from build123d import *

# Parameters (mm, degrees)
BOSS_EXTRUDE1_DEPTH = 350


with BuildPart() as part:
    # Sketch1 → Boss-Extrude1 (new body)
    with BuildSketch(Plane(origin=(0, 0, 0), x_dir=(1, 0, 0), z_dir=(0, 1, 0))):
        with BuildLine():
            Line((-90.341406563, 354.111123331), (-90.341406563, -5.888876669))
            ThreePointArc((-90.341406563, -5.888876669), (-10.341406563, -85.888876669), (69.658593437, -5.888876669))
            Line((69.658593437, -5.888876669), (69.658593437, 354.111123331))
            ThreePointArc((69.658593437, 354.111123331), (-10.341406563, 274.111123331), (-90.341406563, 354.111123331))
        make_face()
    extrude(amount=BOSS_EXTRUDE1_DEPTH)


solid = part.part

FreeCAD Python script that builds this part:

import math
import FreeCAD as App
import Part
import Sketcher

doc = App.newDocument("Part")
params = doc.addObject("Spreadsheet::Sheet", "Params")
for row, (alias, value) in enumerate([
    ("sketch1_radius", "80 mm"),
    ("sketch1_height", "360 mm"),
    ("pad1_length", "350 mm"),
], start=1):
    params.set(f"A{row}", alias)
    params.set(f"B{row}", "=" + value)
    params.setAlias(f"B{row}", alias)

body = doc.addObject("PartDesign::Body", "Body")

# Sketch on XZ plane
sketch1 = body.newObject("Sketcher::SketchObject", "Sketch")
sketch1.AttachmentSupport = (doc.getObject("XZ_Plane"), [""])
sketch1.MapMode = "FlatFace"
sketch1.addGeometry([
    Part.LineSegment(App.Vector(-90.341407, -354.111123, 0), App.Vector(-90.341407, 5.888877, 0)),
    Part.ArcOfCircle(Part.Circle(App.Vector(-10.341407, 5.888877, 0), App.Vector(0, 0, 1), 80), math.radians(0), math.radians(180)),
    Part.LineSegment(App.Vector(69.658593, 5.888877, 0), App.Vector(69.658593, -354.111123, 0)),
    Part.ArcOfCircle(Part.Circle(App.Vector(-10.341407, -354.111123, 0), App.Vector(0, 0, 1), 80), math.radians(0), math.radians(180)),
], False)
sketch1.addConstraint([
    Sketcher.Constraint("Tangent", 0, 2, 1, 2),
    Sketcher.Constraint("Tangent", 1, 1, 2, 1),
    Sketcher.Constraint("Tangent", 2, 2, 3, 1),
    Sketcher.Constraint("Tangent", 3, 2, 0, 1),
    Sketcher.Constraint("Vertical", 0),
    Sketcher.Constraint("Vertical", 2),
    Sketcher.Constraint("Radius", 1, 80.0),
    Sketcher.Constraint("DistanceY", 0, 1, 0, 2, 360.0),
    Sketcher.Constraint("DistanceX", 1, 3, -1, 1, 10.341407),
    Sketcher.Constraint("DistanceY", -1, 1, 1, 3, 5.888877),
])
sketch1.setExpression("Constraints[6]", "Params.sketch1_radius")
sketch1.setExpression("Constraints[7]", "Params.sketch1_height")
pad1 = body.newObject("PartDesign::Pad", "Pad")
pad1.Profile = sketch1
pad1.setExpression("Length", "Params.pad1_length")
pad1.Reversed = True

doc.recompute()
